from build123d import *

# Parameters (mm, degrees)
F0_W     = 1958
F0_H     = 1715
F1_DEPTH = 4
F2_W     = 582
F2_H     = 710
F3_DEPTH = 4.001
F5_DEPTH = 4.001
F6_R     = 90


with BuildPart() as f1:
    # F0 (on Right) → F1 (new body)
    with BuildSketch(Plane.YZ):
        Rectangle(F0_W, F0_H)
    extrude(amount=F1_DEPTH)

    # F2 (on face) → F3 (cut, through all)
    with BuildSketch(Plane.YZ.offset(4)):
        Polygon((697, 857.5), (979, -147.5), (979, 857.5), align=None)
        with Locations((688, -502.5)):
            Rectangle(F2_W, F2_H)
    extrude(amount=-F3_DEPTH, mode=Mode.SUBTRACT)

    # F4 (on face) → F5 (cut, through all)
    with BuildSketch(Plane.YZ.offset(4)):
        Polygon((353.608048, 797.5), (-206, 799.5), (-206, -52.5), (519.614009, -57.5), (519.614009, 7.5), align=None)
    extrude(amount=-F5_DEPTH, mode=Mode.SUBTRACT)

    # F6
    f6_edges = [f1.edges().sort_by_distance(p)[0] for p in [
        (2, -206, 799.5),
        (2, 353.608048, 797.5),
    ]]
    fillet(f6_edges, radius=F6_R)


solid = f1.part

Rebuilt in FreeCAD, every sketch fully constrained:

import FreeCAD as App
import Part
import Sketcher

V = App.Vector


def edges_at(feature, points):
    """Names of the edges that pass closest to the given points."""
    edges = feature.Shape.Edges
    near = lambda p: min(range(len(edges)), key=lambda i: edges[i].distToShape(Part.Vertex(*p))[0])
    return sorted({f"Edge{near(p) + 1}" for p in points})


def add_polygon(sketch, points):
    """Adds a closed chain of lines whose ends are joined by coincident constraints."""
    first, n = sketch.GeometryCount, len(points)
    for a, b in zip(points, points[1:] + points[:1]):
        sketch.addGeometry(Part.LineSegment(App.Vector(*a, 0), App.Vector(*b, 0)), False)
    for i in range(n):
        sketch.addConstraint(Sketcher.Constraint("Coincident", first + i, 2, first + (i + 1) % n, 1))

doc = App.newDocument("Part")
body = doc.addObject("PartDesign::Body", "Body")

# Sketch on YZ plane
sketch1 = body.newObject("Sketcher::SketchObject", "Sketch")
sketch1.AttachmentSupport = (doc.getObject("YZ_Plane"), [""])
sketch1.MapMode = "FlatFace"
add_polygon(sketch1, [(-979, 858), (-979, -858), (979, -858), (979, 858)])  # lines 0-3
sketch1.addConstraint([
    Sketcher.Constraint("Vertical", 0),
    Sketcher.Constraint("Horizontal", 1),
    Sketcher.Constraint("Vertical", 2),
    Sketcher.Constraint("Horizontal", 3),
    Sketcher.Constraint("Symmetric", 0, 2, 2, 2, -1, 1),
    Sketcher.Constraint("DistanceX", 1, 1, 1, 2, 1958.0),
    Sketcher.Constraint("DistanceY", 0, 2, 0, 1, 1715.0),
])
pad1 = body.newObject("PartDesign::Pad", "Pad")
pad1.Profile = sketch1
pad1.Length = 4

# Sketch on YZ plane
sketch2 = body.newObject("Sketcher::SketchObject", "Sketch001")
sketch2.AttachmentSupport = (doc.getObject("YZ_Plane"), [""])
sketch2.MapMode = "FlatFace"
sketch2.AttachmentOffset = App.Placement(V(0, 0, 4), App.Rotation())
add_polygon(sketch2, [(697, 858), (979, -148), (979, 858)])  # lines 0-2
add_polygon(sketch2, [(397, -148), (397, -858), (979, -858), (979, -148)])  # lines 3-6
sketch2.addConstraint([
    Sketcher.Constraint("Vertical", 1),
    Sketcher.Constraint("Horizontal", 2),
    Sketcher.Constraint("Vertical", 3),
    Sketcher.Constraint("Horizontal", 4),
    Sketcher.Constraint("Vertical", 5),
    Sketcher.Constraint("Horizontal", 6),
    Sketcher.Constraint("Coincident", 5, 2, 0, 2),
    Sketcher.Constraint("DistanceX", 2, 2, 2, 1, 282.0),
    Sketcher.Constraint("DistanceX", 4, 1, 4, 2, 582.0),
    Sketcher.Constraint("DistanceY", 1, 1, 1, 2, 1005.0),
    Sketcher.Constraint("DistanceY", 3, 2, 3, 1, 710.0),
    Sketcher.Constraint("DistanceX", -1, 1, 0, 2, 979.0),
    Sketcher.Constraint("DistanceY", 0, 2, -1, 1, 147.5),
])
pocket1 = body.newObject("PartDesign::Pocket", "Pocket")
pocket1.Profile = sketch2
pocket1.Type = "ThroughAll"

# Sketch on YZ plane
sketch3 = body.newObject("Sketcher::SketchObject", "Sketch002")
sketch3.AttachmentSupport = (doc.getObject("YZ_Plane"), [""])
sketch3.MapMode = "FlatFace"
sketch3.AttachmentOffset = App.Placement(V(0, 0, 4), App.Rotation())
add_polygon(sketch3, [(354, 798), (-206, 800), (-206, -52), (520, -58), (520, 8)])  # lines 0-4
sketch3.addConstraint([
    Sketcher.Constraint("Vertical", 1),
    Sketcher.Constraint("Vertical", 3),
    Sketcher.Constraint("DistanceY", 1, 2, 1, 1, 852.0),
    Sketcher.Constraint("DistanceY", 3, 1, 3, 2, 65.0),
    Sketcher.Constraint("DistanceX", 0, 2, -1, 1, 206.0),
    Sketcher.Constraint("DistanceY", 2, 2, 1, 2, 5.0),
    Sketcher.Constraint("DistanceY", 4, 2, 0, 2, 2.0),
    Sketcher.Constraint("DistanceY", -1, 1, 0, 2, 799.5),
    Sketcher.Constraint("Distance", 0, 559.611622),
    Sketcher.Constraint("DistanceX", -1, 1, 2, 2, 519.614009),
])
pocket2 = body.newObject("PartDesign::Pocket", "Pocket001")
pocket2.Profile = sketch3
pocket2.Type = "ThroughAll"
doc.recompute()

fillet = body.newObject("PartDesign::Fillet", "Fillet")
fillet.Base = (pocket2, edges_at(pocket2, [(2, -206, 799.5), (2, 353.608, 797.5)]))
fillet.Radius = 90

doc.recompute()
